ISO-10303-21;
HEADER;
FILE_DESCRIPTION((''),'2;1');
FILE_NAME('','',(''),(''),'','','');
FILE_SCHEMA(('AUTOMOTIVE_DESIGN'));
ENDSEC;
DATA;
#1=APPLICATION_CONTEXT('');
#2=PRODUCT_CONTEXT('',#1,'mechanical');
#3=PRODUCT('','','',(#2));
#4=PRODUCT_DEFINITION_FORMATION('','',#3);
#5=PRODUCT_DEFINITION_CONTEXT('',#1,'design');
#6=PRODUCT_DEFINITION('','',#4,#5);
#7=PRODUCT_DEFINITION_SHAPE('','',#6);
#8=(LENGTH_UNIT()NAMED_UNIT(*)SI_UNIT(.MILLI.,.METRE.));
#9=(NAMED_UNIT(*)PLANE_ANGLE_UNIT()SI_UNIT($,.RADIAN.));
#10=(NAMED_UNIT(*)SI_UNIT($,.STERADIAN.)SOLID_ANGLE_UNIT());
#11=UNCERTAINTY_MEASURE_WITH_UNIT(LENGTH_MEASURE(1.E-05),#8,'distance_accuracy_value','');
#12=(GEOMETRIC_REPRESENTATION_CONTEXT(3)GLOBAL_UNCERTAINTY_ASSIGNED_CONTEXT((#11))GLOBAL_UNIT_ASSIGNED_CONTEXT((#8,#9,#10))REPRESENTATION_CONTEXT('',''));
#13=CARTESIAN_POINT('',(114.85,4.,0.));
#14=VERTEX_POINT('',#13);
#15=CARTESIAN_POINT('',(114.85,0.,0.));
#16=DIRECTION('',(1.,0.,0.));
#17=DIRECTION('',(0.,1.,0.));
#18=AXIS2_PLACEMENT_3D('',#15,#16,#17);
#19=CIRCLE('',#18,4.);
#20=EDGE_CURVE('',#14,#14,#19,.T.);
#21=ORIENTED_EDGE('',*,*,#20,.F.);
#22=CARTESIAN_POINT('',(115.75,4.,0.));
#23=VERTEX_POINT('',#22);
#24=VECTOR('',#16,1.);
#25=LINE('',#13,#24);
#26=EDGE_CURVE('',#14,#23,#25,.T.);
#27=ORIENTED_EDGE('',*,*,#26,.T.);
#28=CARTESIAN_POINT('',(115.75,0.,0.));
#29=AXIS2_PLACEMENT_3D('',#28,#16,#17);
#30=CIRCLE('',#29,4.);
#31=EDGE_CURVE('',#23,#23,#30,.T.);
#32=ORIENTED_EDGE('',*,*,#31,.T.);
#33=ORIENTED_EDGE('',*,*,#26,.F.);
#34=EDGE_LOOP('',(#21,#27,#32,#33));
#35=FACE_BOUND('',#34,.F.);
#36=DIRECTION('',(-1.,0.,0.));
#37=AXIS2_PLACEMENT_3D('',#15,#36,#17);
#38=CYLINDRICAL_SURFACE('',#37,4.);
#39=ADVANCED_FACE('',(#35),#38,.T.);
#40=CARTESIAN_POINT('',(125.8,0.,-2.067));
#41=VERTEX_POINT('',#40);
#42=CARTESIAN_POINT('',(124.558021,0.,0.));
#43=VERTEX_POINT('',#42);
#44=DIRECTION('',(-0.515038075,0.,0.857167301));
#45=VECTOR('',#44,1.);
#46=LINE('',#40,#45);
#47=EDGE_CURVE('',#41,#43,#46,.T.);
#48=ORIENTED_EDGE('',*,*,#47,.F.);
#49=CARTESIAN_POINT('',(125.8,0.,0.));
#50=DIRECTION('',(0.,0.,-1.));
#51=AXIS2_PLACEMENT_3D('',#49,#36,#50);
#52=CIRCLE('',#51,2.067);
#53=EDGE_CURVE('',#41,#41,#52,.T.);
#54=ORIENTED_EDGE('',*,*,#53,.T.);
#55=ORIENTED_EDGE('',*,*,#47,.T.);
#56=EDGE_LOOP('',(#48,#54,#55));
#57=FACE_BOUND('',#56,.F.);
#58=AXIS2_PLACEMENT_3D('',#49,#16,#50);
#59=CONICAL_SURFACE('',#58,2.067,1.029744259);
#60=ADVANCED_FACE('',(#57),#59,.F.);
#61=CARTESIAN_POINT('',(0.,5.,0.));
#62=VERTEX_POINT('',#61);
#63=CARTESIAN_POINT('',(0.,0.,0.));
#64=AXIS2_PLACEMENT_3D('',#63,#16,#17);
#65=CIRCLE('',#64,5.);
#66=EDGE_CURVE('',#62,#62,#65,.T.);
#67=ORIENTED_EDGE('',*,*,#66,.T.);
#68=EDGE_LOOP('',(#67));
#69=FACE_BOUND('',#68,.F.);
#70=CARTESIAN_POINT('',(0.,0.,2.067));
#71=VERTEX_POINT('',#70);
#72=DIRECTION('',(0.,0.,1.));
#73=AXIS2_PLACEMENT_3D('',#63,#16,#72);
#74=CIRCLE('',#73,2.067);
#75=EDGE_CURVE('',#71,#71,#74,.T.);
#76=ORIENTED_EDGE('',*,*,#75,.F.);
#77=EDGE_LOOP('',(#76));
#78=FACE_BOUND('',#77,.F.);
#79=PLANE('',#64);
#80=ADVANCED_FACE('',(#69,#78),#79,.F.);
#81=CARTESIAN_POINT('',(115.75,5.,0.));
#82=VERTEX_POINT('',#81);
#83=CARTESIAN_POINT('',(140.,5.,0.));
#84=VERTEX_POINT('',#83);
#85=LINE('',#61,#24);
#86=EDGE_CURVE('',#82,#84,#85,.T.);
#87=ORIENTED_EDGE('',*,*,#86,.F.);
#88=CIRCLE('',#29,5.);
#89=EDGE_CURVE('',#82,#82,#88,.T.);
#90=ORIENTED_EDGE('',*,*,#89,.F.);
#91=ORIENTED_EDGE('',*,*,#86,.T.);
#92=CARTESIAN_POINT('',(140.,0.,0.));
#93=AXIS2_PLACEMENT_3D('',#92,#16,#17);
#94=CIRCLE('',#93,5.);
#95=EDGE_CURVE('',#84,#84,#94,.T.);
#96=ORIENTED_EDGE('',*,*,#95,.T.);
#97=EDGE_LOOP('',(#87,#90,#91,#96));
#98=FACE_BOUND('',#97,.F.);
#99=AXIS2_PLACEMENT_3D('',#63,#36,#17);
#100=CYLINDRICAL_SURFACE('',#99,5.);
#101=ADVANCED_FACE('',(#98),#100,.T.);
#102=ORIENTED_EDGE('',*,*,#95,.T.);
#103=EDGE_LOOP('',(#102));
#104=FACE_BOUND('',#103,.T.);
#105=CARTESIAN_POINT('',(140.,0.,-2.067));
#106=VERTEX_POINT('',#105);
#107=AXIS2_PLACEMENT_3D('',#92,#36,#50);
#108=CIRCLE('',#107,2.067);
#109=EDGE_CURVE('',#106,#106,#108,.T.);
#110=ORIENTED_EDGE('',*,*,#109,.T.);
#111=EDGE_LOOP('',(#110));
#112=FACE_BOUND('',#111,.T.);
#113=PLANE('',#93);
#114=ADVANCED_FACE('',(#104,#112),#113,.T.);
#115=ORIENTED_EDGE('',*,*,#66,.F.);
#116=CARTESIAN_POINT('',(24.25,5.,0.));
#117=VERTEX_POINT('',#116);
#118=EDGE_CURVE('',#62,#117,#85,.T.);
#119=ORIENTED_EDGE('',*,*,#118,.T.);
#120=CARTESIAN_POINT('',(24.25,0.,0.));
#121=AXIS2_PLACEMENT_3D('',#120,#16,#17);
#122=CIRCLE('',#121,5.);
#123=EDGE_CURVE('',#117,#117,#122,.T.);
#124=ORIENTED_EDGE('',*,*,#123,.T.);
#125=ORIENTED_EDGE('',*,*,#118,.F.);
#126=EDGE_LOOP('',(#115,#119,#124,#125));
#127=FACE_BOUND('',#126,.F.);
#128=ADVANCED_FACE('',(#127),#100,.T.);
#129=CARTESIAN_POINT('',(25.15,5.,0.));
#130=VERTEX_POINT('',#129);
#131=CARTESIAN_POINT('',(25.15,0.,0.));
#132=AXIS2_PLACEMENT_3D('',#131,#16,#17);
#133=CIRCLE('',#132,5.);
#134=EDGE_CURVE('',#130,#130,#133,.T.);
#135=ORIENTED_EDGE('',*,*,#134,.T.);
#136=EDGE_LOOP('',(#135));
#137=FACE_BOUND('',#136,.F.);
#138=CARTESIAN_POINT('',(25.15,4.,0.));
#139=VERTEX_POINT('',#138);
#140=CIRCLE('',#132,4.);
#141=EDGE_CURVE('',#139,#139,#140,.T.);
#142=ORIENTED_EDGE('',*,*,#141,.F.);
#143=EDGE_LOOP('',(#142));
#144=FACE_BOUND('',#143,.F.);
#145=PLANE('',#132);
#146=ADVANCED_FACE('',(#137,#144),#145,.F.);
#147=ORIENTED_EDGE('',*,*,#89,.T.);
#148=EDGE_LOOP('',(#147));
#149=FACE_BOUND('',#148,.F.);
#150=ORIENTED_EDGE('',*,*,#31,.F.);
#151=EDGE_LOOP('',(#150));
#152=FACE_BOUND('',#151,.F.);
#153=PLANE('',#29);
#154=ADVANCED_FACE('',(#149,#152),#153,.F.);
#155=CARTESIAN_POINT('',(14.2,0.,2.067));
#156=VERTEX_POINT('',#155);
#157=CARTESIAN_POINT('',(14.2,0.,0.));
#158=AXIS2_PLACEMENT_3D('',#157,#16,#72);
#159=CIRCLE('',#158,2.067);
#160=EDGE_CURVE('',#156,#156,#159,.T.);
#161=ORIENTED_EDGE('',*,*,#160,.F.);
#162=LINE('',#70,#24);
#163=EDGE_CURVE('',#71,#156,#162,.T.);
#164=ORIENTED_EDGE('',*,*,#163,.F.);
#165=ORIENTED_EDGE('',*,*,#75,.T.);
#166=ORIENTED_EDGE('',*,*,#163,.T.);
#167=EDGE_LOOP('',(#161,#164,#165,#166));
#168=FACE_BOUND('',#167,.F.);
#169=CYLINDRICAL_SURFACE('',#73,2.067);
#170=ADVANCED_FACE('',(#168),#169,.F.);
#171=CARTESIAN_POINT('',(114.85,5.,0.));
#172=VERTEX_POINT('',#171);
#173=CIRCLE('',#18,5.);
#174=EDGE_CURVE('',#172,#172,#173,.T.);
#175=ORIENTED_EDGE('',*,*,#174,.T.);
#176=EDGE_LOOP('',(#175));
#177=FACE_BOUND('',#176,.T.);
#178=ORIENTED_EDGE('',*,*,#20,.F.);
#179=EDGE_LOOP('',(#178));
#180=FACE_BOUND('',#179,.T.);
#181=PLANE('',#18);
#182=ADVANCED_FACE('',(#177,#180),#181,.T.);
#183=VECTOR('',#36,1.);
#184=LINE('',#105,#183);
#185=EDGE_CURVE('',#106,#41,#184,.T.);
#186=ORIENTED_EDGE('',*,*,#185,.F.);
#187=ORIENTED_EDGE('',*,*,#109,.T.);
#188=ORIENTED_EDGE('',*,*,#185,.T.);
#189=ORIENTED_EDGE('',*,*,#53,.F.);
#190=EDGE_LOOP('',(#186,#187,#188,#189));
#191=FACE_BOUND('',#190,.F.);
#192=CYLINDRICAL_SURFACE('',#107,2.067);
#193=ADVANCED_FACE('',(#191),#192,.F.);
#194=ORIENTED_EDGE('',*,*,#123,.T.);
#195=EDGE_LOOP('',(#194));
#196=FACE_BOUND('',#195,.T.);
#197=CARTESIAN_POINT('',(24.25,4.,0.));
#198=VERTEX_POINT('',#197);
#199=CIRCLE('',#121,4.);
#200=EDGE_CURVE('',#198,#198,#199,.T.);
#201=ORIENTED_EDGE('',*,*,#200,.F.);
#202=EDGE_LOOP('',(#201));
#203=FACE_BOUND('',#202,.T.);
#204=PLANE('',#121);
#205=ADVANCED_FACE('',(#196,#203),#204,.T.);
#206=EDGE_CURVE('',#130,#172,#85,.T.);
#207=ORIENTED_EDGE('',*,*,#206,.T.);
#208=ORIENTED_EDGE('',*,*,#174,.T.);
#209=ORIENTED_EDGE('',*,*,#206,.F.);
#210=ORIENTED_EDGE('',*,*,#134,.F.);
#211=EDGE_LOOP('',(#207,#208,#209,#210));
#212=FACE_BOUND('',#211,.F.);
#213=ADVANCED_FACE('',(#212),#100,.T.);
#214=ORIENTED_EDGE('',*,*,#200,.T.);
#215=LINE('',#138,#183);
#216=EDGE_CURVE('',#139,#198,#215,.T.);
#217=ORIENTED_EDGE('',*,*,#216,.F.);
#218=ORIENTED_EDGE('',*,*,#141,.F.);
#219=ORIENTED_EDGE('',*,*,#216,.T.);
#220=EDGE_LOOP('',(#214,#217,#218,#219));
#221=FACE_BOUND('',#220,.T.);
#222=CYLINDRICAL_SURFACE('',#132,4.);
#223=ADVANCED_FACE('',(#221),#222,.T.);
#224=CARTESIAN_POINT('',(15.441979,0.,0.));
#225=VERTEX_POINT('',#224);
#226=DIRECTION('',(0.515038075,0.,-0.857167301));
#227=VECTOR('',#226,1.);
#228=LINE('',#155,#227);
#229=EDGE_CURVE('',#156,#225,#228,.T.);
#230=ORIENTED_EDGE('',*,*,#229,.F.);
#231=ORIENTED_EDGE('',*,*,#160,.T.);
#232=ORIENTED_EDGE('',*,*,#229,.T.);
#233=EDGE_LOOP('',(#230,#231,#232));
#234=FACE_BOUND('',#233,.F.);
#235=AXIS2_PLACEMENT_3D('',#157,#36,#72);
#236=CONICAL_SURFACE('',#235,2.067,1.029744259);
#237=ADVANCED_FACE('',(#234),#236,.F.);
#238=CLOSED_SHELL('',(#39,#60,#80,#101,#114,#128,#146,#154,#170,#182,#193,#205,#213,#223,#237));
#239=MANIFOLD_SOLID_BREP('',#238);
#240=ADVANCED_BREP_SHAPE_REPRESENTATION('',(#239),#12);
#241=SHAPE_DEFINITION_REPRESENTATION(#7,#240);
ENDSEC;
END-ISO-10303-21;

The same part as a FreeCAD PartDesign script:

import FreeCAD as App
import Part
import Sketcher
from FreeCAD import Vector
Q = App.Units.Quantity

doc = App.newDocument("Part")
body = doc.addObject("PartDesign::Body", "Body")

# Sketch on YZ plane
sketch1 = doc.addObject("Sketcher::SketchObject", "Sketch")
body.addObject(sketch1)
sketch1.AttachmentSupport = (doc.YZ_Plane, [""])
sketch1.MapMode = "FlatFace"
sketch1.addGeometry(Part.Circle(Vector(0, 0, 0), Vector(0, 0, 1), 5), False)
sketch1.addConstraint([
    Sketcher.Constraint("Coincident", 0, 3, -1, 1),
    Sketcher.Constraint("Diameter", 0, Q("10 mm")),
])
pad1 = doc.addObject("PartDesign::Pad", "Pad")
body.addObject(pad1)
pad1.Profile = sketch1
pad1.Length = 140

# Sketch on YZ plane
sketch2 = doc.addObject("Sketcher::SketchObject", "Sketch001")
body.addObject(sketch2)
sketch2.AttachmentSupport = (doc.YZ_Plane, [""])
sketch2.MapMode = "FlatFace"
sketch2.addGeometry(Part.Circle(Vector(0, 0, 0), Vector(0, 0, 1), 2.1), False)
sketch2.addConstraint([
    Sketcher.Constraint("Coincident", 0, 3, -1, 1),
    Sketcher.Constraint("Diameter", 0, Q("4.134 mm")),
])
doc.recompute()
hole = doc.addObject("PartDesign::Hole", "Hole")
body.addObject(hole)
hole.Profile = sketch2
hole.ThreadType = "None"
hole.Diameter = 4.134
hole.DepthType = "Dimension"
hole.Depth = 14.2
hole.DrillPoint = "Angled"
hole.DrillPointAngle = 118
hole.Reversed = True

# Sketch on YZ plane
sketch3 = doc.addObject("Sketcher::SketchObject", "Sketch002")
body.addObject(sketch3)
sketch3.AttachmentSupport = (doc.YZ_Plane, [""])
sketch3.MapMode = "FlatFace"
sketch3.AttachmentOffset = App.Placement(Vector(0, 0, 140), App.Rotation())
sketch3.addGeometry(Part.Circle(Vector(0, 0, 0), Vector(0, 0, 1), 2.1), False)
sketch3.addConstraint([
    Sketcher.Constraint("Coincident", 0, 3, -1, 1),
    Sketcher.Constraint("Diameter", 0, Q("4.134 mm")),
])
doc.recompute()
hole2 = doc.addObject("PartDesign::Hole", "Hole001")
body.addObject(hole2)
hole2.Profile = sketch3
hole2.ThreadType = "None"
hole2.Diameter = 4.134
hole2.DepthType = "Dimension"
hole2.Depth = 14.2
hole2.DrillPoint = "Angled"
hole2.DrillPointAngle = 118

# Sketch on YZ plane
sketch4 = doc.addObject("Sketcher::SketchObject", "Sketch003")
body.addObject(sketch4)
sketch4.AttachmentSupport = (doc.YZ_Plane, [""])
sketch4.MapMode = "FlatFace"
sketch4.AttachmentOffset = App.Placement(Vector(0, 0, 114.85), App.Rotation())
sketch4.addGeometry([
    Part.Circle(Vector(0, 0, 0), Vector(0, 0, 1), 5),
    Part.Circle(Vector(0, 0, 0), Vector(0, 0, 1), 4),
], False)
sketch4.addConstraint([
    Sketcher.Constraint("Coincident", 0, 3, -1, 1),
    Sketcher.Constraint("Coincident", 1, 3, -1, 1),
    Sketcher.Constraint("Diameter", 1, Q("8 mm")),
    Sketcher.Constraint("Diameter", 0, Q("10 mm")),
])
pocket1 = doc.addObject("PartDesign::Pocket", "Pocket")
body.addObject(pocket1)
pocket1.Profile = sketch4
pocket1.Length = 0.9
pocket1.Reversed = True

# Sketch on YZ plane
sketch5 = doc.addObject("Sketcher::SketchObject", "Sketch004")
body.addObject(sketch5)
sketch5.AttachmentSupport = (doc.YZ_Plane, [""])
sketch5.MapMode = "FlatFace"
sketch5.AttachmentOffset = App.Placement(Vector(0, 0, 25.15), App.Rotation())
sketch5.addGeometry([
    Part.Circle(Vector(0, 0, 0), Vector(0, 0, 1), 5),
    Part.Circle(Vector(0, 0, 0), Vector(0, 0, 1), 4),
], False)
sketch5.addConstraint([
    Sketcher.Constraint("Coincident", 0, 3, -1, 1),
    Sketcher.Constraint("Coincident", 1, 3, -1, 1),
    Sketcher.Constraint("Diameter", 1, Q("8 mm")),
    Sketcher.Constraint("Diameter", 0, Q("10 mm")),
])
pocket2 = doc.addObject("PartDesign::Pocket", "Pocket001")
body.addObject(pocket2)
pocket2.Profile = sketch5
pocket2.Length = 0.9

doc.recompute()
